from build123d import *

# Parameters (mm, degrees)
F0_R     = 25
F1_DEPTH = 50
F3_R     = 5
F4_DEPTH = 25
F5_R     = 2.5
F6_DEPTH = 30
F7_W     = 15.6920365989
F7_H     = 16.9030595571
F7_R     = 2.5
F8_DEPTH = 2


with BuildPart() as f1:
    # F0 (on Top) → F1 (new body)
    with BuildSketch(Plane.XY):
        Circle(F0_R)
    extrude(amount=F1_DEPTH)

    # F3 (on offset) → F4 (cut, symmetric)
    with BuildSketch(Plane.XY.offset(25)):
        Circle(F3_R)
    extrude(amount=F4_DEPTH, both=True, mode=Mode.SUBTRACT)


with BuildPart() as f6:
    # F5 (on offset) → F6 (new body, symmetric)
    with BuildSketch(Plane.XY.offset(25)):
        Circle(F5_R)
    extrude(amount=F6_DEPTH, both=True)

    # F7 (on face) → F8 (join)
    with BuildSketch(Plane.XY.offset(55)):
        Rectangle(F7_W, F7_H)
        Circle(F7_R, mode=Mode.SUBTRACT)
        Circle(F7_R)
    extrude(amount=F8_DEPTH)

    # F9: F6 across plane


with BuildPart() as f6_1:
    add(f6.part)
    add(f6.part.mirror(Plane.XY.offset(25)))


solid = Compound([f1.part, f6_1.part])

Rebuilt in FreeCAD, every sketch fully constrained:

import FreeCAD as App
import Part
import Sketcher
Q = App.Units.Quantity


def add_polygon(sketch, points):
    """Adds a closed chain of lines whose ends are joined by coincident constraints."""
    first, n = sketch.GeometryCount, len(points)
    for a, b in zip(points, points[1:] + points[:1]):
        sketch.addGeometry(Part.LineSegment(App.Vector(*a, 0), App.Vector(*b, 0)), False)
    for i in range(n):
        sketch.addConstraint(Sketcher.Constraint("Coincident", first + i, 2, first + (i + 1) % n, 1))

doc = App.newDocument("Part")
params = doc.addObject("Spreadsheet::Sheet", "Params")
for row, (alias, value) in enumerate([
    ("sketch1_diameter", "50 mm"),
    ("pad1_length", "50 mm"),
    ("sketch2_diameter", "10 mm"),
    ("pocket1_length", "50 mm"),
    ("sketch3_diameter", "5 mm"),
    ("pad2_length", "60 mm"),
    ("pad3_length", "2 mm"),
], start=1):
    params.set(f"A{row}", alias)
    params.set(f"B{row}", "=" + value)
    params.setAlias(f"B{row}", alias)

body = doc.addObject("PartDesign::Body", "Body")

# Sketch on XY plane
sketch1 = doc.addObject("Sketcher::SketchObject", "Sketch")
body.addObject(sketch1)
sketch1.AttachmentSupport = (doc.XY_Plane, [""])
sketch1.MapMode = "FlatFace"
sketch1.addGeometry(Part.Circle(App.Vector(0, 0, 0), App.Vector(0, 0, 1), 25), False)
sketch1.addConstraint([
    Sketcher.Constraint("Coincident", 0, 3, -1, 1),
    Sketcher.Constraint("Diameter", 0, Q("50 mm")),
])
sketch1.setExpression("Constraints[1]", "Params.sketch1_diameter")
pad1 = doc.addObject("PartDesign::Pad", "Pad")
body.addObject(pad1)
pad1.Profile = sketch1
pad1.setExpression("Length", "Params.pad1_length")

# Sketch on XY plane
sketch2 = doc.addObject("Sketcher::SketchObject", "Sketch001")
body.addObject(sketch2)
sketch2.AttachmentSupport = (doc.XY_Plane, [""])
sketch2.MapMode = "FlatFace"
sketch2.AttachmentOffset = App.Placement(App.Vector(0, 0, 25), App.Rotation())
sketch2.addGeometry(Part.Circle(App.Vector(0, 0, 0), App.Vector(0, 0, 1), 5), False)
sketch2.addConstraint([
    Sketcher.Constraint("Coincident", 0, 3, -1, 1),
    Sketcher.Constraint("Diameter", 0, Q("10 mm")),
])
sketch2.setExpression("Constraints[1]", "Params.sketch2_diameter")
pocket1 = doc.addObject("PartDesign::Pocket", "Pocket")
body.addObject(pocket1)
pocket1.Profile = sketch2
pocket1.setExpression("Length", "Params.pocket1_length")
pocket1.Midplane = True
body2 = doc.addObject("PartDesign::Body", "Body001")

# Sketch on XY plane
sketch3 = doc.addObject("Sketcher::SketchObject", "Sketch002")
body2.addObject(sketch3)
sketch3.AttachmentSupport = (doc.getObject("XY_Plane001"), [""])
sketch3.MapMode = "FlatFace"
sketch3.AttachmentOffset = App.Placement(App.Vector(0, 0, 25), App.Rotation())
sketch3.addGeometry(Part.Circle(App.Vector(0, 0, 0), App.Vector(0, 0, 1), 2.5), False)
sketch3.addConstraint([
    Sketcher.Constraint("Coincident", 0, 3, -1, 1),
    Sketcher.Constraint("Diameter", 0, Q("5 mm")),
])
sketch3.setExpression("Constraints[1]", "Params.sketch3_diameter")
pad2 = doc.addObject("PartDesign::Pad", "Pad001")
body2.addObject(pad2)
pad2.Profile = sketch3
pad2.setExpression("Length", "Params.pad2_length")
pad2.Midplane = True

# Sketch on XY plane
sketch4 = doc.addObject("Sketcher::SketchObject", "Sketch003")
body2.addObject(sketch4)
sketch4.AttachmentSupport = (doc.getObject("XY_Plane001"), [""])
sketch4.MapMode = "FlatFace"
sketch4.AttachmentOffset = App.Placement(App.Vector(0, 0, 55), App.Rotation())
add_polygon(sketch4, [(-8, 8), (-8, -8), (8, -8), (8, 8)])  # lines 0-3
sketch4.addConstraint([
    Sketcher.Constraint("Vertical", 0),
    Sketcher.Constraint("Horizontal", 1),
    Sketcher.Constraint("Vertical", 2),
    Sketcher.Constraint("Horizontal", 3),
    Sketcher.Constraint("Symmetric", 0, 2, 2, 2, -1, 1),
    Sketcher.Constraint("DistanceY", 0, 2, 0, 1, Q("16.90306 mm")),
    Sketcher.Constraint("DistanceX", 1, 1, 1, 2, Q("15.692037 mm")),
])
pad3 = doc.addObject("PartDesign::Pad", "Pad002")
body2.addObject(pad3)
pad3.Profile = sketch4
pad3.setExpression("Length", "Params.pad3_length")
body3 = doc.addObject("PartDesign::Body", "Body002")
doc.recompute()

body3.BaseFeature = body2
doc.recompute()

mirroring = doc.addObject("Part::Mirroring", "Mirroring")
mirroring.Source = body2
mirroring.Base = App.Vector(0, 0, 25)
mirroring.Normal = App.Vector(0, 0, 1)
body4 = doc.addObject("PartDesign::Body", "Body003")
body4.BaseFeature = mirroring
boolean = doc.addObject("PartDesign::Boolean", "Boolean")
body3.addObject(boolean)
boolean.Type = "Fuse"
boolean.addObjects([body4])
doc.recompute()
mirroring.Visibility = False

doc.recompute()
